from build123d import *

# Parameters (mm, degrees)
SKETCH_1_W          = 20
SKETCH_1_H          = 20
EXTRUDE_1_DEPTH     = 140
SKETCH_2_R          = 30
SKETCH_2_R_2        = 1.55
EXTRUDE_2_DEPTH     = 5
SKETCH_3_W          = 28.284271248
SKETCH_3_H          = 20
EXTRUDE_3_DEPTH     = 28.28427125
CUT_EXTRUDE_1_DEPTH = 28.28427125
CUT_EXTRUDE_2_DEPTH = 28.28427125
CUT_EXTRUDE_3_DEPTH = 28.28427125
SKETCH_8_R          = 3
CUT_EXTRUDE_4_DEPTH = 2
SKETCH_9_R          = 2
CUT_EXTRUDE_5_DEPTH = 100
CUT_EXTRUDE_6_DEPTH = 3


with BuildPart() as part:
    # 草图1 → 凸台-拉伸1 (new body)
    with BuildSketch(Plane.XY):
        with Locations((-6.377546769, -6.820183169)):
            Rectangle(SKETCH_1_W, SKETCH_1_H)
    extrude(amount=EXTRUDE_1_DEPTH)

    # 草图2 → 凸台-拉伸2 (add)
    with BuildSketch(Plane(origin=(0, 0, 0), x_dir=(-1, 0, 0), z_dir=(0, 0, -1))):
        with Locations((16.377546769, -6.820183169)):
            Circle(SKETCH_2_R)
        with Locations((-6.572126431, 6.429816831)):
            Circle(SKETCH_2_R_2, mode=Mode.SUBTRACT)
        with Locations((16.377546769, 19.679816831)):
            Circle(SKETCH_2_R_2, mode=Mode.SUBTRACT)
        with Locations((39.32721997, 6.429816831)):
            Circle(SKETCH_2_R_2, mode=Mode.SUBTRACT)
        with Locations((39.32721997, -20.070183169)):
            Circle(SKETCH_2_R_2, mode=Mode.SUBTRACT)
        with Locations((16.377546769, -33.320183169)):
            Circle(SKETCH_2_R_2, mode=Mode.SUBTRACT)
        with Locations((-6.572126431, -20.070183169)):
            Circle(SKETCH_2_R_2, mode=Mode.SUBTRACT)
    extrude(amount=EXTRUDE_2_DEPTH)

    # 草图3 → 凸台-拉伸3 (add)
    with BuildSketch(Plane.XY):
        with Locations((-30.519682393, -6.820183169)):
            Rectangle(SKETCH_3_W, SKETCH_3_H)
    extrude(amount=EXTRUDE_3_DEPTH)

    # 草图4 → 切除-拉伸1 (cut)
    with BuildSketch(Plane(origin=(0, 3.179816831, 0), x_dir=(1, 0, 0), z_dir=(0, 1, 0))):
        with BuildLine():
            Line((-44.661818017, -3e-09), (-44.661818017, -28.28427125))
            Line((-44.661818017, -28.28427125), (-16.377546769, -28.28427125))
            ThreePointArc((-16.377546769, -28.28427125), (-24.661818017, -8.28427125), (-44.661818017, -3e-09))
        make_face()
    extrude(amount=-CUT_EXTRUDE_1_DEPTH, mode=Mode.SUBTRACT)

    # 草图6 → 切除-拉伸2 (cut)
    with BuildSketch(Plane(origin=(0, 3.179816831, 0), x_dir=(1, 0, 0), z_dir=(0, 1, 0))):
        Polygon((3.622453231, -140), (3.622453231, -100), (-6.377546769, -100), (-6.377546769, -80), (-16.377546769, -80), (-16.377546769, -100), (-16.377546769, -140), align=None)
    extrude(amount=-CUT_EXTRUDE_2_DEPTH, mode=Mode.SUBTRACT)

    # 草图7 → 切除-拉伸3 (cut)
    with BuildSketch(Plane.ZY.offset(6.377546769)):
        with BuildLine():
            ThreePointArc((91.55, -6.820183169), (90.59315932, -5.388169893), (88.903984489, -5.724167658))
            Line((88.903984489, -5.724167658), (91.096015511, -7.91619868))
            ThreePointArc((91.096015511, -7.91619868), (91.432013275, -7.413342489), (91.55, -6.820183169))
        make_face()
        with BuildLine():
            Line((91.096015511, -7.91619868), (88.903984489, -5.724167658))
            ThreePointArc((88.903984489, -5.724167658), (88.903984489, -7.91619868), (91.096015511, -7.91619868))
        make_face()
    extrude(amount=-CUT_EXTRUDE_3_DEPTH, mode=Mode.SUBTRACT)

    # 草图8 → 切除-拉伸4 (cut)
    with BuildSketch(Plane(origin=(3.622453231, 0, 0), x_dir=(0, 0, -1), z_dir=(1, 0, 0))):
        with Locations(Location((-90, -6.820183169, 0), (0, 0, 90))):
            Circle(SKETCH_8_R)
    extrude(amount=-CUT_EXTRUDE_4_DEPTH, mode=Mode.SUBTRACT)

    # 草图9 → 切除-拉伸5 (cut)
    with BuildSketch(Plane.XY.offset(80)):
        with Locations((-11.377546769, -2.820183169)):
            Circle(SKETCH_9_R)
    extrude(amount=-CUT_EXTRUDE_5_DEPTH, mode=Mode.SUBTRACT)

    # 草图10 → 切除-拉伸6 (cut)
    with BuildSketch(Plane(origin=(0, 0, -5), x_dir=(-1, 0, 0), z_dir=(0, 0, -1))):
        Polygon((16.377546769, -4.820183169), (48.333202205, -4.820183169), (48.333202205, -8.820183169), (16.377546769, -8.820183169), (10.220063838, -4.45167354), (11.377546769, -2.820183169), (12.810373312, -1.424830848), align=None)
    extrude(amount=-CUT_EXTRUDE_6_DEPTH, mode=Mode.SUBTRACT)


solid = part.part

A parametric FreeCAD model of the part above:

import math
import FreeCAD as App
import Part
import Sketcher

V = App.Vector

doc = App.newDocument("Part")
body = doc.addObject("PartDesign::Body", "Body")

# Sketch on XY plane
sketch1 = body.newObject("Sketcher::SketchObject", "Sketch")
sketch1.AttachmentSupport = (doc.getObject("XY_Plane"), [""])
sketch1.MapMode = "FlatFace"
sketch1.addGeometry([
    Part.LineSegment(V(-16, 3, 0), V(-16, -17, 0)),
    Part.LineSegment(V(-16, -17, 0), V(4, -17, 0)),
    Part.LineSegment(V(4, -17, 0), V(4, 3, 0)),
    Part.LineSegment(V(4, 3, 0), V(-16, 3, 0)),
], False)
sketch1.addConstraint([
    Sketcher.Constraint("Coincident", 0, 2, 1, 1),
    Sketcher.Constraint("Coincident", 1, 2, 2, 1),
    Sketcher.Constraint("Coincident", 2, 2, 3, 1),
    Sketcher.Constraint("Coincident", 3, 2, 0, 1),
    Sketcher.Constraint("Vertical", 0),
    Sketcher.Constraint("Horizontal", 1),
    Sketcher.Constraint("Vertical", 2),
    Sketcher.Constraint("Horizontal", 3),
    Sketcher.Constraint("Equal", 3, 0),
    Sketcher.Constraint("DistanceX", 1, 1, 1, 2, 20.0),
    Sketcher.Constraint("DistanceX", 0, 2, -1, 1, 16.377547),
    Sketcher.Constraint("DistanceY", 0, 2, -1, 1, 16.820183),
])
pad1 = body.newObject("PartDesign::Pad", "Pad")
pad1.Profile = sketch1
pad1.Length = 140

# Sketch on XY plane
sketch2 = body.newObject("Sketcher::SketchObject", "Sketch001")
sketch2.AttachmentSupport = (doc.getObject("XY_Plane"), [""])
sketch2.MapMode = "FlatFace"
sketch2.addGeometry([
    Part.Circle(V(-16.4, -6.8, 0), V(0, 0, 1), 30),  # 0
    Part.Circle(V(-16.4, -33.3, 0), V(0, 0, 1), 1.6),  # 1
    Part.Circle(V(6.6, -20.1, 0), V(0, 0, 1), 1.6),  # 2
    Part.Circle(V(-39.3, -20.1, 0), V(0, 0, 1), 1.6),  # 3
    Part.Circle(V(6.6, 6.4, 0), V(0, 0, 1), 1.6),  # 4
    Part.Circle(V(-16.4, 19.7, 0), V(0, 0, 1), 1.6),  # 5
    Part.Circle(V(-39.3, 6.4, 0), V(0, 0, 1), 1.6),  # 6
], False)
sketch2.addConstraint([
    Sketcher.Constraint("Equal", 1, 2),
    Sketcher.Constraint("Equal", 2, 3),
    Sketcher.Constraint("Equal", 3, 4),
    Sketcher.Constraint("Equal", 4, 5),
    Sketcher.Constraint("Equal", 5, 6),
    Sketcher.Constraint("Horizontal", 2, 3, 3, 3),
    Sketcher.Constraint("Horizontal", 4, 3, 6, 3),
    Sketcher.Constraint("Vertical", 0, 3, 1, 3),
    Sketcher.Constraint("Vertical", 2, 3, 4, 3),
    Sketcher.Constraint("Vertical", 1, 3, 5, 3),
    Sketcher.Constraint("Vertical", 3, 3, 6, 3),
    Sketcher.Constraint("Diameter", 0, 60.0),
    Sketcher.Constraint("Diameter", 1, 3.1),
    Sketcher.Constraint("DistanceY", 1, 3, 5, 3, 53.0),
    Sketcher.Constraint("DistanceY", 1, 3, 0, 3, 26.5),
    Sketcher.Constraint("DistanceY", 2, 3, 4, 3, 26.5),
    Sketcher.Constraint("DistanceY", 2, 3, 0, 3, 13.25),
    Sketcher.Constraint("DistanceX", 3, 3, -1, 1, 39.32722),
    Sketcher.Constraint("DistanceX", 0, 3, -1, 1, 16.377547),
    Sketcher.Constraint("DistanceY", 0, 3, -1, 1, 6.820183),
    Sketcher.Constraint("DistanceX", -1, 1, 2, 3, 6.572126),
])
pad2 = body.newObject("PartDesign::Pad", "Pad001")
pad2.Profile = sketch2
pad2.Length = 5
pad2.Reversed = True

# Sketch on XY plane
sketch3 = body.newObject("Sketcher::SketchObject", "Sketch002")
sketch3.AttachmentSupport = (doc.getObject("XY_Plane"), [""])
sketch3.MapMode = "FlatFace"
sketch3.addGeometry([
    Part.LineSegment(V(-45, 3, 0), V(-45, -17, 0)),
    Part.LineSegment(V(-45, -17, 0), V(-16, -17, 0)),
    Part.LineSegment(V(-16, -17, 0), V(-16, 3, 0)),
    Part.LineSegment(V(-16, 3, 0), V(-45, 3, 0)),
], False)
sketch3.addConstraint([
    Sketcher.Constraint("Coincident", 0, 2, 1, 1),
    Sketcher.Constraint("Coincident", 1, 2, 2, 1),
    Sketcher.Constraint("Coincident", 2, 2, 3, 1),
    Sketcher.Constraint("Coincident", 3, 2, 0, 1),
    Sketcher.Constraint("Vertical", 0),
    Sketcher.Constraint("Horizontal", 1),
    Sketcher.Constraint("Vertical", 2),
    Sketcher.Constraint("Horizontal", 3),
    Sketcher.Constraint("DistanceY", 0, 2, 0, 1, 20.0),
    Sketcher.Constraint("DistanceX", 1, 1, 1, 2, 28.284271),
    Sketcher.Constraint("DistanceX", 0, 2, -1, 1, 44.661818),
    Sketcher.Constraint("DistanceY", 0, 2, -1, 1, 16.820183),
])
pad3 = body.newObject("PartDesign::Pad", "Pad002")
pad3.Profile = sketch3
pad3.Length = 28.284271

# Sketch on XZ plane
sketch4 = body.newObject("Sketcher::SketchObject", "Sketch003")
sketch4.AttachmentSupport = (doc.getObject("XZ_Plane"), [""])
sketch4.MapMode = "FlatFace"
sketch4.AttachmentOffset = App.Placement(V(0, 0, -3.179817), App.Rotation())
sketch4.addGeometry([
    Part.LineSegment(V(-45, 0, 0), V(-45, 28, 0)),
    Part.LineSegment(V(-45, 28, 0), V(-16, 28, 0)),
    Part.ArcOfCircle(Part.Circle(V(-45, 28, 0), V(0, 0, 1), 28), math.radians(-90), math.radians(0)),
], False)
sketch4.addConstraint([
    Sketcher.Constraint("Coincident", 0, 2, 1, 1),
    Sketcher.Constraint("Coincident", 1, 2, 2, 2),
    Sketcher.Constraint("Coincident", 2, 1, 0, 1),
    Sketcher.Constraint("Vertical", 0),
    Sketcher.Constraint("Horizontal", 1),
    Sketcher.Constraint("Coincident", 0, 2, 2, 3),
    Sketcher.Constraint("PointOnObject", 2, 1, -1),
    Sketcher.Constraint("Radius", 2, 28.284271),
    Sketcher.Constraint("DistanceX", 2, 3, -1, 1, 44.661818),
])
pocket1 = body.newObject("PartDesign::Pocket", "Pocket")
pocket1.Profile = sketch4
pocket1.Length = 28.284271
pocket1.Reversed = True

# Sketch on XZ plane
sketch5 = body.newObject("Sketcher::SketchObject", "Sketch004")
sketch5.AttachmentSupport = (doc.getObject("XZ_Plane"), [""])
sketch5.MapMode = "FlatFace"
sketch5.AttachmentOffset = App.Placement(V(0, 0, -3.179817), App.Rotation())
sketch5.addGeometry([
    Part.LineSegment(V(4, 140, 0), V(4, 100, 0)),  # 0
    Part.LineSegment(V(4, 100, 0), V(-6, 100, 0)),  # 1
    Part.LineSegment(V(-6, 100, 0), V(-6, 80, 0)),  # 2
    Part.LineSegment(V(-6, 80, 0), V(-16, 80, 0)),  # 3
    Part.LineSegment(V(-16, 80, 0), V(-16, 140, 0)),  # 4
    Part.LineSegment(V(-16, 140, 0), V(4, 140, 0)),  # 5
], False)
sketch5.addConstraint([
    Sketcher.Constraint("Coincident", 0, 2, 1, 1),
    Sketcher.Constraint("Coincident", 1, 2, 2, 1),
    Sketcher.Constraint("Coincident", 2, 2, 3, 1),
    Sketcher.Constraint("Coincident", 3, 2, 4, 1),
    Sketcher.Constraint("Coincident", 4, 2, 5, 1),
    Sketcher.Constraint("Coincident", 5, 2, 0, 1),
    Sketcher.Constraint("Vertical", 0),
    Sketcher.Constraint("Horizontal", 1),
    Sketcher.Constraint("Vertical", 2),
    Sketcher.Constraint("Horizontal", 3),
    Sketcher.Constraint("Vertical", 4),
    Sketcher.Constraint("Horizontal", 5),
    Sketcher.Constraint("Equal", 1, 3),
    Sketcher.Constraint("Equal", 5, 2),
    Sketcher.Constraint("DistanceX", 1, 2, 1, 1, 10.0),
    Sketcher.Constraint("DistanceY", 0, 2, 0, 1, 40.0),
    Sketcher.Constraint("DistanceY", -1, 1, 0, 2, 100.0),
    Sketcher.Constraint("DistanceX", -1, 1, 0, 2, 3.622453),
])
pocket2 = body.newObject("PartDesign::Pocket", "Pocket001")
pocket2.Profile = sketch5
pocket2.Length = 28.284271
pocket2.Reversed = True

# Sketch on YZ plane
sketch6 = body.newObject("Sketcher::SketchObject", "Sketch005")
sketch6.AttachmentSupport = (doc.getObject("YZ_Plane"), [""])
sketch6.MapMode = "FlatFace"
sketch6.AttachmentOffset = App.Placement(V(0, 0, -6.377547), App.Rotation())
sketch6.addGeometry([
    Part.ArcOfCircle(Part.Circle(V(-6.8, 90, 0), V(0, 0, 1), 1.6), math.radians(-45), math.radians(90)),
    Part.ArcOfCircle(Part.Circle(V(-6.8, 90, 0), V(0, 0, 1), 1.6), math.radians(135), math.radians(315)),
    Part.ArcOfCircle(Part.Circle(V(-6.8, 90, 0), V(0, 0, 1), 1.6), math.radians(90), math.radians(135)),
], False)
sketch6.addConstraint([
    Sketcher.Constraint("Tangent", 0, 1, 1, 2),
    Sketcher.Constraint("Tangent", 1, 1, 2, 2),
    Sketcher.Constraint("Tangent", 2, 1, 0, 2),
    Sketcher.Constraint("Vertical", 1, 3, 2, 1),
    Sketcher.Constraint("Radius", 0, 1.55),
    Sketcher.Constraint("DistanceY", -1, 1, 0, 3, 90.0),
    Sketcher.Constraint("DistanceX", 1, 1, -1, 1, 7.916199),
    Sketcher.Constraint("DistanceX", 1, 1, 0, 1, 2.192031),
    Sketcher.Constraint("DistanceX", 0, 3, -1, 1, 6.820183),
])
pocket3 = body.newObject("PartDesign::Pocket", "Pocket002")
pocket3.Profile = sketch6
pocket3.Length = 28.284271
pocket3.Reversed = True

# Sketch on YZ plane
sketch7 = body.newObject("Sketcher::SketchObject", "Sketch006")
sketch7.AttachmentSupport = (doc.getObject("YZ_Plane"), [""])
sketch7.MapMode = "FlatFace"
sketch7.AttachmentOffset = App.Placement(V(0, 0, 3.622453), App.Rotation())
sketch7.addGeometry(Part.Circle(V(-6.8, 90, 0), V(0, 0, 1), 3), False)
sketch7.addConstraint([
    Sketcher.Constraint("Diameter", 0, 6.0),
    Sketcher.Constraint("DistanceY", -1, 1, 0, 3, 90.0),
    Sketcher.Constraint("DistanceX", 0, 3, -1, 1, 6.820183),
])
pocket4 = body.newObject("PartDesign::Pocket", "Pocket003")
pocket4.Profile = sketch7
pocket4.Length = 2

# Sketch on XY plane
sketch8 = body.newObject("Sketcher::SketchObject", "Sketch007")
sketch8.AttachmentSupport = (doc.getObject("XY_Plane"), [""])
sketch8.MapMode = "FlatFace"
sketch8.AttachmentOffset = App.Placement(V(0, 0, 80), App.Rotation())
sketch8.addGeometry(Part.Circle(V(-11.4, -2.8, 0), V(0, 0, 1), 2), False)
sketch8.addConstraint([
    Sketcher.Constraint("Diameter", 0, 4.0),
    Sketcher.Constraint("DistanceX", 0, 3, -1, 1, 11.377547),
    Sketcher.Constraint("DistanceY", 0, 3, -1, 1, 2.820183),
])
pocket5 = body.newObject("PartDesign::Pocket", "Pocket004")
pocket5.Profile = sketch8
pocket5.Length = 100

# Sketch on XY plane
sketch9 = body.newObject("Sketcher::SketchObject", "Sketch008")
sketch9.AttachmentSupport = (doc.getObject("XY_Plane"), [""])
sketch9.MapMode = "FlatFace"
sketch9.AttachmentOffset = App.Placement(V(0, 0, -5), App.Rotation())
sketch9.addGeometry([
    Part.LineSegment(V(-48.3, -4.8, 0), V(-16.4, -4.8, 0)),  # 0
    Part.LineSegment(V(-16.4, -4.8, 0), V(-12.8, -1.4, 0)),  # 1
    Part.LineSegment(V(-12.8, -1.4, 0), V(-11.4, -2.8, 0)),  # 2
    Part.LineSegment(V(-11.4, -2.8, 0), V(-10.2, -4.5, 0)),  # 3
    Part.LineSegment(V(-10.2, -4.5, 0), V(-16.4, -8.8, 0)),  # 4
    Part.LineSegment(V(-16.4, -8.8, 0), V(-48.3, -8.8, 0)),  # 5
    Part.LineSegment(V(-48.3, -8.8, 0), V(-48.3, -4.8, 0)),  # 6
], False)
sketch9.addConstraint([
    Sketcher.Constraint("Coincident", 0, 2, 1, 1),
    Sketcher.Constraint("Coincident", 1, 2, 2, 1),
    Sketcher.Constraint("Coincident", 2, 2, 3, 1),
    Sketcher.Constraint("Coincident", 3, 2, 4, 1),
    Sketcher.Constraint("Coincident", 4, 2, 5, 1),
    Sketcher.Constraint("Coincident", 5, 2, 6, 1),
    Sketcher.Constraint("Coincident", 6, 2, 0, 1),
    Sketcher.Constraint("Horizontal", 0),
    Sketcher.Constraint("Horizontal", 5),
    Sketcher.Constraint("Vertical", 6),
    Sketcher.Constraint("Perpendicular", 3, 4),
    Sketcher.Constraint("Vertical", 0, 2, 4, 2),
    Sketcher.Constraint("DistanceY", 6, 1, 6, 2, 4.0),
    Sketcher.Constraint("Distance", 2, 2.0),
    Sketcher.Constraint("DistanceX", 0, 2, 2, 2, 5.0),
    Sketcher.Constraint("DistanceY", 0, 2, 2, 2, 2.0),
    Sketcher.Constraint("Distance", 1, 4.924748),
    Sketcher.Constraint("Distance", 3, 2.000382),
    Sketcher.Constraint("DistanceX", 0, 1, 0, 2, 31.955655),
    Sketcher.Constraint("DistanceY", 1, 2, -1, 1, 1.424831),
    Sketcher.Constraint("DistanceX", 0, 2, -1, 1, 16.377547),
])
pocket6 = body.newObject("PartDesign::Pocket", "Pocket005")
pocket6.Profile = sketch9
pocket6.Length = 3
pocket6.Reversed = True

doc.recompute()
